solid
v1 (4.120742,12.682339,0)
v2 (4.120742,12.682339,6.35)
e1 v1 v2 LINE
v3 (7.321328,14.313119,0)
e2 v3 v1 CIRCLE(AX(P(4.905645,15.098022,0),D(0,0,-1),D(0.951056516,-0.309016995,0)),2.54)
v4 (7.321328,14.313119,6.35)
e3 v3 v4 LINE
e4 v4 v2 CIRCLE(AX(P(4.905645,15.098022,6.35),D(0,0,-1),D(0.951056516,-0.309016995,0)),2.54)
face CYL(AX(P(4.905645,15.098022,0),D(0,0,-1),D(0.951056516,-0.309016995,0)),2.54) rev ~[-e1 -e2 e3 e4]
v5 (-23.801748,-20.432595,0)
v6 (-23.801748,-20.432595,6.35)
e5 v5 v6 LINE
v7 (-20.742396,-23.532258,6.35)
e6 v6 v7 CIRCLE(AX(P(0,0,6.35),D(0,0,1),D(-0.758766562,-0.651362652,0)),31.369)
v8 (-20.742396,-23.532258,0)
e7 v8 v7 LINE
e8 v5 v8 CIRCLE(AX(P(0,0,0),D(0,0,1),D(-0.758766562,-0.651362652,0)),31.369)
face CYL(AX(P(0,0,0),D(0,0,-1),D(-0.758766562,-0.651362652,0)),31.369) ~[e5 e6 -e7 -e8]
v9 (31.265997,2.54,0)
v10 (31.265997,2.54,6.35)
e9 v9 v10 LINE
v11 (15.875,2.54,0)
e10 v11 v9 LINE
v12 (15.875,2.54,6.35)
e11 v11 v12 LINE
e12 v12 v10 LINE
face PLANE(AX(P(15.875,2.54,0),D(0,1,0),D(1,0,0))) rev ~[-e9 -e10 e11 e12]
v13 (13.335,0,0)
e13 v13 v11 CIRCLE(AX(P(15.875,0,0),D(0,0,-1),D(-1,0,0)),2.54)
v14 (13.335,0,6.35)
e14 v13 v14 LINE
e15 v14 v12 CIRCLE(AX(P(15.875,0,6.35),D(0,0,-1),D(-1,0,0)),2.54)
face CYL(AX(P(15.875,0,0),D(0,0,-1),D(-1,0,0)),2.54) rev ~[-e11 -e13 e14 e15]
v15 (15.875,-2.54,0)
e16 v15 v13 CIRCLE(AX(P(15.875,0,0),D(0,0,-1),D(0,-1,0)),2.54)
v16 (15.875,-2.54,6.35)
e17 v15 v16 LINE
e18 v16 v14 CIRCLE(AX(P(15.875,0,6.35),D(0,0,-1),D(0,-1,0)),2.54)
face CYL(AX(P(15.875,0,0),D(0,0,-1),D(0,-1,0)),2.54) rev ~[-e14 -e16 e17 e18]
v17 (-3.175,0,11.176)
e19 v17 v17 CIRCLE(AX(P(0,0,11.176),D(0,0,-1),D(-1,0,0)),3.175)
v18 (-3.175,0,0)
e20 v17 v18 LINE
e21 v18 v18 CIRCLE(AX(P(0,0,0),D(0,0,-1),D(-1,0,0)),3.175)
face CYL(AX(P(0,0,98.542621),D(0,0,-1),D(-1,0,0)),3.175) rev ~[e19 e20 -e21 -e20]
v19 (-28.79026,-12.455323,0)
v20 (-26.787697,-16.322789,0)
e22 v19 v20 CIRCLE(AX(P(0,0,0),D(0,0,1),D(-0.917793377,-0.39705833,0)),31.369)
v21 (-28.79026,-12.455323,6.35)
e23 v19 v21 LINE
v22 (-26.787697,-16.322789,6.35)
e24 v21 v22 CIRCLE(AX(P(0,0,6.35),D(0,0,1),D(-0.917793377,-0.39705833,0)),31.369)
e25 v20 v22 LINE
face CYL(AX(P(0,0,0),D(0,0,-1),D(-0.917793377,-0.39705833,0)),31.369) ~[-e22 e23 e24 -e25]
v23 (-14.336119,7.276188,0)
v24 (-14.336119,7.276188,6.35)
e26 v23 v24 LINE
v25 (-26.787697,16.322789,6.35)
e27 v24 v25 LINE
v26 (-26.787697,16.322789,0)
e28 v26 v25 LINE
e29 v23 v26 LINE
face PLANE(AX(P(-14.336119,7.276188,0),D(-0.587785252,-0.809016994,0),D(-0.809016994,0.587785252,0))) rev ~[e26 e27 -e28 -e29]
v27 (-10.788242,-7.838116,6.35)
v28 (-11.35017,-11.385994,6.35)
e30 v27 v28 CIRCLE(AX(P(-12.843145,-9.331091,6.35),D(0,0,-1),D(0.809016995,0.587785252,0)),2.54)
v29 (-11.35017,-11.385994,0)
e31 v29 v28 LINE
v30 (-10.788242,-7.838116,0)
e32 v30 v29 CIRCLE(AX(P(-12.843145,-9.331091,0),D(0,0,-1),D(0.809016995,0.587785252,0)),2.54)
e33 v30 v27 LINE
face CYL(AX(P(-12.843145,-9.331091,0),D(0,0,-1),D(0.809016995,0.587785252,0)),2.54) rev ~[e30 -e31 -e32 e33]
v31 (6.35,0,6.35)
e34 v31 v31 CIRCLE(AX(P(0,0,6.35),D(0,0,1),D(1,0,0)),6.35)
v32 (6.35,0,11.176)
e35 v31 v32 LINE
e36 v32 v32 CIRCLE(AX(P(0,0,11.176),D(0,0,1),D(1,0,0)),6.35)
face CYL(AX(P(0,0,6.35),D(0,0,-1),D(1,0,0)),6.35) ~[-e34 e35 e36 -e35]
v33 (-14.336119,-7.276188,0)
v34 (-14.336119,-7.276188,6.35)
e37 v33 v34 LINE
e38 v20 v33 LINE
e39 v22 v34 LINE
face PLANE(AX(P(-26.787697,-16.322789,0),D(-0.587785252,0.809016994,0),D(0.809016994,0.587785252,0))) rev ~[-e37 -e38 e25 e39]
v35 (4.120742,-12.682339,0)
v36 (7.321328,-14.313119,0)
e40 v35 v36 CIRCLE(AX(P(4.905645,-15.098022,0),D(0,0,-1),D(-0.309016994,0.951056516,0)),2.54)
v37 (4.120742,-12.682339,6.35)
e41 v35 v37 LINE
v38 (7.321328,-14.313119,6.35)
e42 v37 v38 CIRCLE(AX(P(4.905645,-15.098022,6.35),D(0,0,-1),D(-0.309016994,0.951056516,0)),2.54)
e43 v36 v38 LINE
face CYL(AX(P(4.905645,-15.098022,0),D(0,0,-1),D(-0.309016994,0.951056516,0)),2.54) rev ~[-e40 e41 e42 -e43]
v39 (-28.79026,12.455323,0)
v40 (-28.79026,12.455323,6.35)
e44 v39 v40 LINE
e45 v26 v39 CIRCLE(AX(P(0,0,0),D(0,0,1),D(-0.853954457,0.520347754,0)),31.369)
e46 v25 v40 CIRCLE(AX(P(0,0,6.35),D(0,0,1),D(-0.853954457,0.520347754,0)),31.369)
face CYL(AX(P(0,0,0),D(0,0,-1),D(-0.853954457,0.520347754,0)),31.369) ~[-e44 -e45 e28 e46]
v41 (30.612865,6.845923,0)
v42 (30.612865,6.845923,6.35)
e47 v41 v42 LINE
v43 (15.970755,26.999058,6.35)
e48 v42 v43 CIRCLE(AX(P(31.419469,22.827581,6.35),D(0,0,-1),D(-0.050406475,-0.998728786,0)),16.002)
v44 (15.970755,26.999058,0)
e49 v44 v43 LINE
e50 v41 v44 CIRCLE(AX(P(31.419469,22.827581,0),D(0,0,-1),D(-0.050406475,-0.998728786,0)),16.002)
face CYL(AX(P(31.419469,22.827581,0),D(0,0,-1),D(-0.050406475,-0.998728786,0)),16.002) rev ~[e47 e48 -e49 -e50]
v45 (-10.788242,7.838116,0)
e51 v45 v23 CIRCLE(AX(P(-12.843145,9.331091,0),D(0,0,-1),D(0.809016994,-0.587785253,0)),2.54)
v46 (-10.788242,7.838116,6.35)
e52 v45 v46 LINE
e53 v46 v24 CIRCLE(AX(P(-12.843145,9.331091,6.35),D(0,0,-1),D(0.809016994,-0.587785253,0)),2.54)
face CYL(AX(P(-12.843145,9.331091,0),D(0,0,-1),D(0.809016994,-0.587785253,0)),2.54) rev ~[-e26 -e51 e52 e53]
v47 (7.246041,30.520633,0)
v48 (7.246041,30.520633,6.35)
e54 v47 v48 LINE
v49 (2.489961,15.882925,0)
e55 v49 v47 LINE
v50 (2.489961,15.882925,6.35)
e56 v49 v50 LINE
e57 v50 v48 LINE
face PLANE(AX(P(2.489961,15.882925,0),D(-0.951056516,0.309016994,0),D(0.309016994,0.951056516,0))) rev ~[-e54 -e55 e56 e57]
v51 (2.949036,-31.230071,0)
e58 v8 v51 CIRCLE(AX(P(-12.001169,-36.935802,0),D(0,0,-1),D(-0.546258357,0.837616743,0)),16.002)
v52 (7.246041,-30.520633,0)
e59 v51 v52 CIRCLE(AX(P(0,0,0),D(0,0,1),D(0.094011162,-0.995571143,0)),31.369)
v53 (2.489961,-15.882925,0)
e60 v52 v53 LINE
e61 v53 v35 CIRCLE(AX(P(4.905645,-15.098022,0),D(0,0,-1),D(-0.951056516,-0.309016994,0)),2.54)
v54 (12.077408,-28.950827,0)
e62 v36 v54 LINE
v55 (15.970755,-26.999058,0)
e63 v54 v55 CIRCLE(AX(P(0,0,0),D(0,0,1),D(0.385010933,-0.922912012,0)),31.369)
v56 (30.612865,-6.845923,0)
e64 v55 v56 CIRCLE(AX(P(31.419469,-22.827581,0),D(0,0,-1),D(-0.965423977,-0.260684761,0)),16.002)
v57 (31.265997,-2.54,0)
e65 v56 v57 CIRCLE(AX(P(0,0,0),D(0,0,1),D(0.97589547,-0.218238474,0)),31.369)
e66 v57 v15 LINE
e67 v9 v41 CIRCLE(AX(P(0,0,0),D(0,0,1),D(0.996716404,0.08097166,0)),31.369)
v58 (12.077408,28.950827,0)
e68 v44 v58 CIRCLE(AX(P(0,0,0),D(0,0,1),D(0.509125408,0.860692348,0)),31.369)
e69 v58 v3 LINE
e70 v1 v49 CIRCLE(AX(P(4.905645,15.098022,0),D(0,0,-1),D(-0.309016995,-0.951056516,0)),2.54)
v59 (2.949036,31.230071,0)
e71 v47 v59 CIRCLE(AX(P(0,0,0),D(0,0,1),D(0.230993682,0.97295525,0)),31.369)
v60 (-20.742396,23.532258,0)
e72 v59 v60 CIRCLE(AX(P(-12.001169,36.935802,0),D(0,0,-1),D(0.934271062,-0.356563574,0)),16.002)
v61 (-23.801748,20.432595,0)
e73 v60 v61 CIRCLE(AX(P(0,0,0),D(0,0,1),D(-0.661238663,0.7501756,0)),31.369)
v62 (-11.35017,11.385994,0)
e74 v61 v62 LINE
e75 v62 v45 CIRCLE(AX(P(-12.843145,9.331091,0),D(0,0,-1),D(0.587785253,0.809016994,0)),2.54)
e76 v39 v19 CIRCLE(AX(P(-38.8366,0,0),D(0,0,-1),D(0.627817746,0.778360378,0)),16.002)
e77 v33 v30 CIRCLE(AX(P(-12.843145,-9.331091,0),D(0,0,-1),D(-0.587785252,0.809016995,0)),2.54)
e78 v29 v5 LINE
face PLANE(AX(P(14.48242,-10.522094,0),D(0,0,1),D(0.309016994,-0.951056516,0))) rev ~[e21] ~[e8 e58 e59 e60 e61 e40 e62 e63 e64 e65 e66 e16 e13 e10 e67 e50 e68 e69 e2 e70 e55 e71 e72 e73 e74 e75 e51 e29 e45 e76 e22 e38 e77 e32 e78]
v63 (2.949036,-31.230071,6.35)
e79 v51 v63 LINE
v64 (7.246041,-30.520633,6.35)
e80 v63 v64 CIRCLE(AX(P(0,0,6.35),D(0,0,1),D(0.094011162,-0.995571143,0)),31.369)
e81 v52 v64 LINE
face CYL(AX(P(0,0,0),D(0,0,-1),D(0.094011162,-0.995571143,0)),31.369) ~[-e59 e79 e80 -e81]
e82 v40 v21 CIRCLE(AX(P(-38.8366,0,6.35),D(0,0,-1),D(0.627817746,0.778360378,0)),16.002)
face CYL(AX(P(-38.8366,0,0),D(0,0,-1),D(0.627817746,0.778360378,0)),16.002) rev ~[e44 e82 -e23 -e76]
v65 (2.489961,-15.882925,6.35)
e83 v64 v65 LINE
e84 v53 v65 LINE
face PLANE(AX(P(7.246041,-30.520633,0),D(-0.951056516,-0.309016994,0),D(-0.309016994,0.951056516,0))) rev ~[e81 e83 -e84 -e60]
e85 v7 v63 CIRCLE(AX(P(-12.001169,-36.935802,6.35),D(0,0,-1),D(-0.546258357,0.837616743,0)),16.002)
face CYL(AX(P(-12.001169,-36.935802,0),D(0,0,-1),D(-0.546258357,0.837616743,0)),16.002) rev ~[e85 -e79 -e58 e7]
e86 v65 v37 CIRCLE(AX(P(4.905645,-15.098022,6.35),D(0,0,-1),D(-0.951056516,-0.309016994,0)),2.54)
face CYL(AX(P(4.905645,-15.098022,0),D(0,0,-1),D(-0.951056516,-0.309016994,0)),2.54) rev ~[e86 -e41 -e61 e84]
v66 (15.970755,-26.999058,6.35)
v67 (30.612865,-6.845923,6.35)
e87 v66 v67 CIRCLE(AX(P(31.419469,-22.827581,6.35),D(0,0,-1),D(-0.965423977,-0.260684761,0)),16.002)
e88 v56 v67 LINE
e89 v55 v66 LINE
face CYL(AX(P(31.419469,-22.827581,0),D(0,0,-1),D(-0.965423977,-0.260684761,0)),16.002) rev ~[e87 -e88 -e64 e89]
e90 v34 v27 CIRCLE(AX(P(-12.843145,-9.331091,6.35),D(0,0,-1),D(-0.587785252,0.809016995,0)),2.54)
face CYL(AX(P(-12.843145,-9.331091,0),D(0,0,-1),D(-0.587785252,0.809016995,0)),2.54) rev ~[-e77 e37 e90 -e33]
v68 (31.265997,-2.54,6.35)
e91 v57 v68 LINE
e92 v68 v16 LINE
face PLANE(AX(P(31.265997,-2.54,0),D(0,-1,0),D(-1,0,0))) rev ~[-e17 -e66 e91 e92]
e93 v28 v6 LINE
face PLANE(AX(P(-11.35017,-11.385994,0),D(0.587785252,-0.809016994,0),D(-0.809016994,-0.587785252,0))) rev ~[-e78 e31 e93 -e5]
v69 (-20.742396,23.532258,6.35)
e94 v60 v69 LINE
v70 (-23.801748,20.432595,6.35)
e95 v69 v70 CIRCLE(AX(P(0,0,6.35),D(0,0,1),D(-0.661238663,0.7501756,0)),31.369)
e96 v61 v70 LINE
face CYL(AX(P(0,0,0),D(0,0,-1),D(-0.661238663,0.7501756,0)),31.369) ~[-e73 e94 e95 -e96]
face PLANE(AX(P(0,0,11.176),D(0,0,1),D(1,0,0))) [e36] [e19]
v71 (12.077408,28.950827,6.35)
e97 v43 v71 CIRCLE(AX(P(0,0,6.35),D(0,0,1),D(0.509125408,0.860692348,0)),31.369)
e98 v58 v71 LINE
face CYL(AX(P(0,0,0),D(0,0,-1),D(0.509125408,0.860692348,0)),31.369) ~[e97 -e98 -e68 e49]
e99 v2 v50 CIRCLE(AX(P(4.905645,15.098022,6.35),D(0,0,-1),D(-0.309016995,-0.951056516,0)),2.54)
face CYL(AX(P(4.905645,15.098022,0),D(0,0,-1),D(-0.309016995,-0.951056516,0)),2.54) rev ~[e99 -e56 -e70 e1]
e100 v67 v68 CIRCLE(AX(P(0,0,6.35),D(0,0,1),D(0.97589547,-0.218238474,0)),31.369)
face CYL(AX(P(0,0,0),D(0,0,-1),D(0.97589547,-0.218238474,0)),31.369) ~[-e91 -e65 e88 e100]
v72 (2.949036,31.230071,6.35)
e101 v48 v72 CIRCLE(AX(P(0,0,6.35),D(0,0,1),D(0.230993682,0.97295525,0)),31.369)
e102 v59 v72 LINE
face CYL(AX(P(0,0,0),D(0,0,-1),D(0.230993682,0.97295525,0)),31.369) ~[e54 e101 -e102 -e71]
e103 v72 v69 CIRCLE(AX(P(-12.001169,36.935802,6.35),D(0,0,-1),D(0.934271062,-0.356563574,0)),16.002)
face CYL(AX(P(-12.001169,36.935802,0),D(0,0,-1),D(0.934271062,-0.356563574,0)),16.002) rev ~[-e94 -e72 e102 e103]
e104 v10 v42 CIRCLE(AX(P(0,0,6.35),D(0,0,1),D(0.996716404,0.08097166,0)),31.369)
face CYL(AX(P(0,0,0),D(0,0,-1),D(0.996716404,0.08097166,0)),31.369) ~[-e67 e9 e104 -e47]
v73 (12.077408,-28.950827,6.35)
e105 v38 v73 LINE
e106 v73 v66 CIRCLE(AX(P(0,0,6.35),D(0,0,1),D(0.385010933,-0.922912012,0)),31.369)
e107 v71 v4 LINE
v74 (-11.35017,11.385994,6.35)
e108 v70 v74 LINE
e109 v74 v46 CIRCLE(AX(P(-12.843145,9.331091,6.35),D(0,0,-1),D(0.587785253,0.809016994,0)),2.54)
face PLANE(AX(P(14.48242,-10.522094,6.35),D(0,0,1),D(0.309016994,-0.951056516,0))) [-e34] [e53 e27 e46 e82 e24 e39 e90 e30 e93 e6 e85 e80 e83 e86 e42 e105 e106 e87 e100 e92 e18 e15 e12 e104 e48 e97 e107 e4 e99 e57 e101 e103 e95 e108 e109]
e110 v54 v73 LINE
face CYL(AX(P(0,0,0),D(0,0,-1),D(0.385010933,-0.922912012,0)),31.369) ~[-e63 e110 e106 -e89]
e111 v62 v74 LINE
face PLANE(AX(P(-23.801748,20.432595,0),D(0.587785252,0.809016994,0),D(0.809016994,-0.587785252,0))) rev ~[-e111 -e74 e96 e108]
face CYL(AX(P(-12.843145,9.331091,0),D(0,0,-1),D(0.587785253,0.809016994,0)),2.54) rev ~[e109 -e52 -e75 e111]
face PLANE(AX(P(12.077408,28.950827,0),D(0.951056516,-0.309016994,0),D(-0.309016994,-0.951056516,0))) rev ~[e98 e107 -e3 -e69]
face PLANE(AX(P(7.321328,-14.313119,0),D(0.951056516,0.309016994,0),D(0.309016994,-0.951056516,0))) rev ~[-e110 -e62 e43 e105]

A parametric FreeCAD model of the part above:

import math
import FreeCAD as App
import Part
import Sketcher
from FreeCAD import Vector
Q = App.Units.Quantity

doc = App.newDocument("Part")
body = doc.addObject("PartDesign::Body", "Body")

sketch1 = body.newObject("Sketcher::SketchObject", "Sketch")
sketch1.AttachmentSupport = (doc.getObject("XY_Plane"), [""])
sketch1.MapMode = "FlatFace"
sketch1.addGeometry(Part.LineSegment(Vector(4.1, 12.7, 0), Vector(0, 0, 0)), False)
sketch1.addGeometry(Part.LineSegment(Vector(0, 0, 0), Vector(13.3, 0, 0)), False)
sketch1.addGeometry(Part.ArcOfCircle(Part.Circle(Vector(15.9, 0, 0), Vector(0, 0, 1), 2.5), math.radians(90), math.radians(180)), False)
sketch1.addGeometry(Part.LineSegment(Vector(15.9, 2.5, 0), Vector(31.3, 2.5, 0)), False)
sketch1.addGeometry(Part.ArcOfCircle(Part.Circle(Vector(0, 0, 0), Vector(0, 0, 1), 31.4), math.radians(4.64), math.radians(12.61)), False)
sketch1.addGeometry(Part.ArcOfCircle(Part.Circle(Vector(31.4, 22.8, 0), Vector(0, 0, 1), 16), math.radians(165), math.radians(267)), False)
sketch1.addGeometry(Part.ArcOfCircle(Part.Circle(Vector(0, 0, 0), Vector(0, 0, 1), 31.4), math.radians(59.39), math.radians(67.36)), False)
sketch1.addGeometry(Part.LineSegment(Vector(12.1, 29, 0), Vector(7.3, 14.3, 0)), False)
sketch1.addGeometry(Part.ArcOfCircle(Part.Circle(Vector(4.9, 15.1, 0), Vector(0, 0, 1), 2.5), math.radians(-108), math.radians(-18)), False)
sketch1.addConstraint(Sketcher.Constraint("Coincident", 0, 2, 1, 1))
sketch1.addConstraint(Sketcher.Constraint("Coincident", 1, 2, 2, 2))
sketch1.addConstraint(Sketcher.Constraint("Tangent", 2, 1, 3, 1))
sketch1.addConstraint(Sketcher.Constraint("Coincident", 3, 2, 4, 1))
sketch1.addConstraint(Sketcher.Constraint("Coincident", 4, 2, 5, 2))
sketch1.addConstraint(Sketcher.Constraint("Coincident", 5, 1, 6, 1))
sketch1.addConstraint(Sketcher.Constraint("Coincident", 6, 2, 7, 1))
sketch1.addConstraint(Sketcher.Constraint("Tangent", 7, 2, 8, 2))
sketch1.addConstraint(Sketcher.Constraint("Coincident", 8, 1, 0, 1))
sketch1.addConstraint(Sketcher.Constraint("Horizontal", 1))
sketch1.addConstraint(Sketcher.Constraint("Horizontal", 3))
sketch1.addConstraint(Sketcher.Constraint("Coincident", 4, 3, -1, 1))
sketch1.addConstraint(Sketcher.Constraint("Coincident", 6, 3, -1, 1))
sketch1.addConstraint(Sketcher.Constraint("Coincident", 0, 2, -1, 1))
sketch1.addConstraint(Sketcher.Constraint("Equal", 4, 6))
sketch1.addConstraint(Sketcher.Constraint("Equal", 2, 8))
sketch1.addConstraint(Sketcher.Constraint("PointOnObject", 2, 3, -1))
sketch1.addConstraint(Sketcher.Constraint("Parallel", 0, 7))
sketch1.addConstraint(Sketcher.Constraint("Radius", 2, Q("0.1 in")))
sketch1.addConstraint(Sketcher.Constraint("Radius", 5, Q("0.63 in")))
sketch1.addConstraint(Sketcher.Constraint("Angle", 0, Q("-108 deg")))
sketch1.addConstraint(Sketcher.Constraint("Radius", 4, Q("1.235 in")))
sketch1.addConstraint(Sketcher.Constraint("DistanceX", 1, 1, 1, 2, Q("0.525 in")))
sketch1.addConstraint(Sketcher.Constraint("Distance", 0, Q("0.525 in")))
sketch1.addConstraint(Sketcher.Constraint("DistanceX", -1, 1, 5, 3, 31.419469))
sketch1.addConstraint(Sketcher.Constraint("DistanceY", -1, 1, 5, 3, 22.827581))
sketch1.addConstraint(Sketcher.Constraint("DistanceX", -1, 1, 7, 2, 7.321328))
pad1 = body.newObject("PartDesign::Pad", "Pad")
pad1.Profile = sketch1
pad1.Length = Q("0.25 in")
doc.recompute()

polarpattern = body.newObject("PartDesign::PolarPattern", "PolarPattern")
polarpattern.Originals = [pad1]
polarpattern.Axis = (doc.getObject("Z_Axis"), [""])
polarpattern.Angle = 360
polarpattern.Occurrences = 5
body.Tip = polarpattern

sketch2 = body.newObject("Sketcher::SketchObject", "Sketch001")
sketch2.AttachmentSupport = (doc.getObject("XY_Plane"), [""])
sketch2.MapMode = "FlatFace"
sketch2.AttachmentOffset = App.Placement(Vector(0, 0, 0.25 * 25.4), App.Rotation())
sketch2.addGeometry(Part.Circle(Vector(0, 0, 0), Vector(0, 0, 1), 6), False)
sketch2.addConstraint(Sketcher.Constraint("Coincident", 0, 3, -1, 1))
sketch2.addConstraint(Sketcher.Constraint("Diameter", 0, Q("0.5 in")))
pad2 = body.newObject("PartDesign::Pad", "Pad001")
pad2.Profile = sketch2
pad2.Length = Q("0.19 in")

sketch3 = body.newObject("Sketcher::SketchObject", "Sketch002")
sketch3.AttachmentSupport = (doc.getObject("XY_Plane"), [""])
sketch3.MapMode = "FlatFace"
sketch3.AttachmentOffset = App.Placement(Vector(0, 0, 0.44 * 25.4), App.Rotation())
sketch3.addGeometry(Part.Circle(Vector(0, 0, 0), Vector(0, 0, 1), 3.2), False)
sketch3.addConstraint(Sketcher.Constraint("Coincident", 0, 3, -1, 1))
sketch3.addConstraint(Sketcher.Constraint("Diameter", 0, Q("0.25 in")))
doc.recompute()
hole = body.newObject("PartDesign::Hole", "Hole")
hole.Profile = sketch3
hole.ThreadType = "None"
hole.Diameter = Q("0.25 in")
hole.DepthType = "ThroughAll"

doc.recompute()
